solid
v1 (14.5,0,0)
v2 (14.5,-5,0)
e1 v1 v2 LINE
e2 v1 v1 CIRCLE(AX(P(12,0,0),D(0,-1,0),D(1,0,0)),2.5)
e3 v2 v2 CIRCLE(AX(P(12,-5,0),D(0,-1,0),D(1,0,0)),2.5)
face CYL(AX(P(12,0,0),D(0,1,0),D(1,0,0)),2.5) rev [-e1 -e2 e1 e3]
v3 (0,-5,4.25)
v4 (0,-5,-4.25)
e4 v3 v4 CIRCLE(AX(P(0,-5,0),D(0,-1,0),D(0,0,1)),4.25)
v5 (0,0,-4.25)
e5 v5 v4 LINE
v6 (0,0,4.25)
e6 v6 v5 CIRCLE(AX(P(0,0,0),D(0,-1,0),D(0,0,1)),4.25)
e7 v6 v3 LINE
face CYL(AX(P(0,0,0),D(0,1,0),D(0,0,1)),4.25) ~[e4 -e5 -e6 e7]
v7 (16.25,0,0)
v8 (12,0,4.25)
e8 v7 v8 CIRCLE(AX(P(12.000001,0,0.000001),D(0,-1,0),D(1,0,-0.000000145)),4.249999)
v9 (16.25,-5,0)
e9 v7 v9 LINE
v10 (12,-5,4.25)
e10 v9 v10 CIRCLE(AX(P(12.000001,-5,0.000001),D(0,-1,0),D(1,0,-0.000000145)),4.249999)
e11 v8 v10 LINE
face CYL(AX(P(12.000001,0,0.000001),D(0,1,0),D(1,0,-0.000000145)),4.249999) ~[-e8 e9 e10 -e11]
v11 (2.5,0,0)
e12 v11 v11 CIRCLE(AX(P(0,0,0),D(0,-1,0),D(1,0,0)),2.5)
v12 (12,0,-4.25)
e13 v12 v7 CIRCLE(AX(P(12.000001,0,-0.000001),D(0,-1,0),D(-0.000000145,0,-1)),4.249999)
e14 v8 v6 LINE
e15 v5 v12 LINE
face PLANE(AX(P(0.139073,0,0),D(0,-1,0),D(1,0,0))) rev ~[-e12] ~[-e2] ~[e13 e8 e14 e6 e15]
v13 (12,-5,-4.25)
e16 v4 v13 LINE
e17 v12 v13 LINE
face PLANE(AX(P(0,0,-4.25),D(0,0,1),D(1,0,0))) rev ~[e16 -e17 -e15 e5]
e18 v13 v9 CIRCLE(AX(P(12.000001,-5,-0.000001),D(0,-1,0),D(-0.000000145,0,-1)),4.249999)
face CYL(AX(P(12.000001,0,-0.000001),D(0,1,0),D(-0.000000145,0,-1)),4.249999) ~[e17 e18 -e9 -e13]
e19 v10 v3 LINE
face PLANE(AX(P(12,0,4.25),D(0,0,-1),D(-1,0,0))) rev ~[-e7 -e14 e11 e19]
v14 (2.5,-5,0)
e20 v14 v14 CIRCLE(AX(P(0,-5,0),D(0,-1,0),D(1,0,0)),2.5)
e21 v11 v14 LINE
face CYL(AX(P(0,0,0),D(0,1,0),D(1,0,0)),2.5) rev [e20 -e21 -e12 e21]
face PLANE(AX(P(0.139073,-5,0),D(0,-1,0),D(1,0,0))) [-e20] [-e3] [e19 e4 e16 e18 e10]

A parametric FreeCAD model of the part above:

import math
import FreeCAD as App
import Part
import Sketcher
Q = App.Units.Quantity

doc = App.newDocument("Part")
body = doc.addObject("PartDesign::Body", "Body")

# Sketch on XZ plane
sketch1 = doc.addObject("Sketcher::SketchObject", "Sketch")
body.addObject(sketch1)
sketch1.AttachmentSupport = (doc.XZ_Plane, [""])
sketch1.MapMode = "FlatFace"
sketch1.addGeometry(Part.ArcOfCircle(Part.Circle(App.Vector(0, 0, 0), App.Vector(0, 0, 1), 4.2), math.radians(90), math.radians(270)), False)
sketch1.addGeometry(Part.LineSegment(App.Vector(0, -4.2, 0), App.Vector(12, -4.2, 0)), False)
sketch1.addGeometry(Part.ArcOfCircle(Part.Circle(App.Vector(12, 0, 0), App.Vector(0, 0, 1), 4.2), math.radians(-90), math.radians(0)), False)
sketch1.addGeometry(Part.ArcOfCircle(Part.Circle(App.Vector(12, 0, 0), App.Vector(0, 0, 1), 4.2), math.radians(0), math.radians(90)), False)
sketch1.addGeometry(Part.LineSegment(App.Vector(12, 4.2, 0), App.Vector(0, 4.2, 0)), False)
sketch1.addGeometry(Part.Circle(App.Vector(0, 0, 0), App.Vector(0, 0, 1), 2.5), False)
sketch1.addGeometry(Part.Circle(App.Vector(12, 0, 0), App.Vector(0, 0, 1), 2.5), False)
sketch1.addConstraint(Sketcher.Constraint("Tangent", 0, 2, 1, 1))
sketch1.addConstraint(Sketcher.Constraint("Tangent", 1, 2, 2, 1))
sketch1.addConstraint(Sketcher.Constraint("Tangent", 2, 2, 3, 1))
sketch1.addConstraint(Sketcher.Constraint("Tangent", 3, 2, 4, 1))
sketch1.addConstraint(Sketcher.Constraint("Tangent", 4, 2, 0, 1))
sketch1.addConstraint(Sketcher.Constraint("Horizontal", 1))
sketch1.addConstraint(Sketcher.Constraint("Horizontal", 4))
sketch1.addConstraint(Sketcher.Constraint("Coincident", 0, 3, -1, 1))
sketch1.addConstraint(Sketcher.Constraint("Coincident", 5, 3, -1, 1))
sketch1.addConstraint(Sketcher.Constraint("Coincident", 6, 3, 2, 3))
sketch1.addConstraint(Sketcher.Constraint("Equal", 0, 2))
sketch1.addConstraint(Sketcher.Constraint("Equal", 5, 6))
sketch1.addConstraint(Sketcher.Constraint("PointOnObject", 2, 2, -1))
sketch1.addConstraint(Sketcher.Constraint("Diameter", 5, Q("5 mm")))
sketch1.addConstraint(Sketcher.Constraint("DistanceX", 1, 1, 1, 2, Q("12 mm")))
sketch1.addConstraint(Sketcher.Constraint("Radius", 0, Q("4.25 mm")))
pad1 = doc.addObject("PartDesign::Pad", "Pad")
body.addObject(pad1)
pad1.Profile = sketch1
pad1.Length = 5

doc.recompute()
